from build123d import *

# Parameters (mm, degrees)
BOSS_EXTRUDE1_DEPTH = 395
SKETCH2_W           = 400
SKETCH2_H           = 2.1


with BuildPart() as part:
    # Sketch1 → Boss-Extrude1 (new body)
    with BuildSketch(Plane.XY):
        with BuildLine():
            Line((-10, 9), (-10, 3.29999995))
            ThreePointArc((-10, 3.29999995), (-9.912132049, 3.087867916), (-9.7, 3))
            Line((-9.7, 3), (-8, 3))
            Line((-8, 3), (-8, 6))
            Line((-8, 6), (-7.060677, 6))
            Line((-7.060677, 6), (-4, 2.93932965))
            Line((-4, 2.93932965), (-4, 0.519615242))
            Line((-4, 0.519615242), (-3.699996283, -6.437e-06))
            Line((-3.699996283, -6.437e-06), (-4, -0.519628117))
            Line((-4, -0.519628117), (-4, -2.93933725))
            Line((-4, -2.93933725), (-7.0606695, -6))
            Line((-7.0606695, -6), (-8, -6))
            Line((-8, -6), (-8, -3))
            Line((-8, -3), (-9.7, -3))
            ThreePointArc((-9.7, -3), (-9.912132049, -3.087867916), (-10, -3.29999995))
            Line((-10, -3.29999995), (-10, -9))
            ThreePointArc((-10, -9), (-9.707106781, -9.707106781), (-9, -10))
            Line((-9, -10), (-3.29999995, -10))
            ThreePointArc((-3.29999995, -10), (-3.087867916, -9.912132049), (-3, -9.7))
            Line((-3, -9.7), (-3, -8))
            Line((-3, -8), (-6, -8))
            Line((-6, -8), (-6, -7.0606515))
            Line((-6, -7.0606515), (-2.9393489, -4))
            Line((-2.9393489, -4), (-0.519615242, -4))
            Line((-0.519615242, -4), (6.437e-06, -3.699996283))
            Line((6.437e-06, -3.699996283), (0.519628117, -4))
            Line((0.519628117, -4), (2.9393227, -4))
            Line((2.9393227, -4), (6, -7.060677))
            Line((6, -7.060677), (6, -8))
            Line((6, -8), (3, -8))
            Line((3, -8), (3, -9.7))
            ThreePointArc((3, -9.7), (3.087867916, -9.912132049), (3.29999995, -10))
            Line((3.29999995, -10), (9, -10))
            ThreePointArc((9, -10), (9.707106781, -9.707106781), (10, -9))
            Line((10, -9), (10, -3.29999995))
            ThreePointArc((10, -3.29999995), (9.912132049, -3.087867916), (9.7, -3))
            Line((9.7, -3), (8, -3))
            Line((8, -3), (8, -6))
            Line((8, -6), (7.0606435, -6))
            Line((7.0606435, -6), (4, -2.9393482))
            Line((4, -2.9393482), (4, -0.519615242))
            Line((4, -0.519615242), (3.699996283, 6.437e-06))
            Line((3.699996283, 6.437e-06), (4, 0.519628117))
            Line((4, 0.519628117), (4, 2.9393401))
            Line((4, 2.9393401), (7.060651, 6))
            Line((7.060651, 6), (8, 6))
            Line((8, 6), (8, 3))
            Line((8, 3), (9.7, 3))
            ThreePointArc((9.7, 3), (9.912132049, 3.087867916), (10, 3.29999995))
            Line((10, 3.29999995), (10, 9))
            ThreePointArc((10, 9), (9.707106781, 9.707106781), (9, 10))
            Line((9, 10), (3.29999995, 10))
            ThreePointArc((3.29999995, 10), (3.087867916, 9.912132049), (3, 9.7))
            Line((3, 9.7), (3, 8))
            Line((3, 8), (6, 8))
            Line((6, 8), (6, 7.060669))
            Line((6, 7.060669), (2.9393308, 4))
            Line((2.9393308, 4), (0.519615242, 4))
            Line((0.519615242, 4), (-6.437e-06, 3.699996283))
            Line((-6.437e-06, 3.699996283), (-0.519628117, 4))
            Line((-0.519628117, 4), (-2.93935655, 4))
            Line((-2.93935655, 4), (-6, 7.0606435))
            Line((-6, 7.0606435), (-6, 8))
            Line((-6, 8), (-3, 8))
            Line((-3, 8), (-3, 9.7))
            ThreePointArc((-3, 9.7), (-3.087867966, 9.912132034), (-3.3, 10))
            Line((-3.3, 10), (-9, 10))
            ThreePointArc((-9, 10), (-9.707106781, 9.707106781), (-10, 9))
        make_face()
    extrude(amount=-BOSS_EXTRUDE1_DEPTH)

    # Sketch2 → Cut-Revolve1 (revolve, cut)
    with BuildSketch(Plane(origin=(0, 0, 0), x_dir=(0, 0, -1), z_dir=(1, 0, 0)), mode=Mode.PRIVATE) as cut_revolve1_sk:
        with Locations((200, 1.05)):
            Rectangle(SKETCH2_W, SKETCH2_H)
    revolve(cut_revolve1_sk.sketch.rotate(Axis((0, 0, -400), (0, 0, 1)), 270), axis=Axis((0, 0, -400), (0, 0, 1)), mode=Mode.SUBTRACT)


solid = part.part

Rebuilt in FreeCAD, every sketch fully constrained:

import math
import FreeCAD as App
import Part
import Sketcher
Q = App.Units.Quantity

doc = App.newDocument("Part")
params = doc.addObject("Spreadsheet::Sheet", "Params")
for row, (alias, value) in enumerate([
    ("sketch1_radius", "1 mm"),
    ("sketch1_radius2", "0.3 mm"),
    ("sketch1_width", "3 mm"),
    ("sketch1_width2", "1.7 mm"),
    ("sketch1_width3", "5.7 mm"),
    ("pad1_length", "395 mm"),
    ("sketch2_height", "400 mm"),
    ("sketch2_width", "2.1 mm"),
    ("groove_angle", "360 deg"),
], start=1):
    params.set(f"A{row}", alias)
    params.set(f"B{row}", "=" + value)
    params.setAlias(f"B{row}", alias)

body = doc.addObject("PartDesign::Body", "Body")

# Sketch on XY plane
sketch1 = body.newObject("Sketcher::SketchObject", "Sketch")
sketch1.AttachmentSupport = (doc.getObject("XY_Plane"), [""])
sketch1.MapMode = "FlatFace"
sketch1.addGeometry(Part.LineSegment(App.Vector(-10, 9, 0), App.Vector(-10, 3.3, 0)), False)
sketch1.addGeometry(Part.ArcOfCircle(Part.Circle(App.Vector(-9.7, 3.3, 0), App.Vector(0, 0, 1), 0.3), math.radians(180), math.radians(270)), False)
sketch1.addGeometry(Part.LineSegment(App.Vector(-9.7, 3, 0), App.Vector(-8, 3, 0)), False)
sketch1.addGeometry(Part.LineSegment(App.Vector(-8, 3, 0), App.Vector(-8, 6, 0)), False)
sketch1.addGeometry(Part.LineSegment(App.Vector(-8, 6, 0), App.Vector(-7.06, 6, 0)), False)
sketch1.addGeometry(Part.LineSegment(App.Vector(-7.06, 6, 0), App.Vector(-4, 2.94, 0)), False)
sketch1.addGeometry(Part.LineSegment(App.Vector(-4, 2.94, 0), App.Vector(-4, 0.52, 0)), False)
sketch1.addGeometry(Part.LineSegment(App.Vector(-4, 0.52, 0), App.Vector(-3.7, 0, 0)), False)
sketch1.addGeometry(Part.LineSegment(App.Vector(-3.7, 0, 0), App.Vector(-4, -0.52, 0)), False)
sketch1.addGeometry(Part.LineSegment(App.Vector(-4, -0.52, 0), App.Vector(-4, -2.94, 0)), False)
sketch1.addGeometry(Part.LineSegment(App.Vector(-4, -2.94, 0), App.Vector(-7.06, -6, 0)), False)
sketch1.addGeometry(Part.LineSegment(App.Vector(-7.06, -6, 0), App.Vector(-8, -6, 0)), False)
sketch1.addGeometry(Part.LineSegment(App.Vector(-8, -6, 0), App.Vector(-8, -3, 0)), False)
sketch1.addGeometry(Part.LineSegment(App.Vector(-8, -3, 0), App.Vector(-9.7, -3, 0)), False)
sketch1.addGeometry(Part.ArcOfCircle(Part.Circle(App.Vector(-9.7, -3.3, 0), App.Vector(0, 0, 1), 0.3), math.radians(90), math.radians(180)), False)
sketch1.addGeometry(Part.LineSegment(App.Vector(-10, -3.3, 0), App.Vector(-10, -9, 0)), False)
sketch1.addGeometry(Part.ArcOfCircle(Part.Circle(App.Vector(-9, -9, 0), App.Vector(0, 0, 1), 1), math.radians(-180), math.radians(-90)), False)
sketch1.addGeometry(Part.LineSegment(App.Vector(-9, -10, 0), App.Vector(-3.3, -10, 0)), False)
sketch1.addGeometry(Part.ArcOfCircle(Part.Circle(App.Vector(-3.3, -9.7, 0), App.Vector(0, 0, 1), 0.3), math.radians(-90), math.radians(0)), False)
sketch1.addGeometry(Part.LineSegment(App.Vector(-3, -9.7, 0), App.Vector(-3, -8, 0)), False)
sketch1.addGeometry(Part.LineSegment(App.Vector(-3, -8, 0), App.Vector(-6, -8, 0)), False)
sketch1.addGeometry(Part.LineSegment(App.Vector(-6, -8, 0), App.Vector(-6, -7.06, 0)), False)
sketch1.addGeometry(Part.LineSegment(App.Vector(-6, -7.06, 0), App.Vector(-2.94, -4, 0)), False)
sketch1.addGeometry(Part.LineSegment(App.Vector(-2.94, -4, 0), App.Vector(-0.52, -4, 0)), False)
sketch1.addGeometry(Part.LineSegment(App.Vector(-0.52, -4, 0), App.Vector(0, -3.7, 0)), False)
sketch1.addGeometry(Part.LineSegment(App.Vector(0, -3.7, 0), App.Vector(0.52, -4, 0)), False)
sketch1.addGeometry(Part.LineSegment(App.Vector(0.52, -4, 0), App.Vector(2.94, -4, 0)), False)
sketch1.addGeometry(Part.LineSegment(App.Vector(2.94, -4, 0), App.Vector(6, -7.06, 0)), False)
sketch1.addGeometry(Part.LineSegment(App.Vector(6, -7.06, 0), App.Vector(6, -8, 0)), False)
sketch1.addGeometry(Part.LineSegment(App.Vector(6, -8, 0), App.Vector(3, -8, 0)), False)
sketch1.addGeometry(Part.LineSegment(App.Vector(3, -8, 0), App.Vector(3, -9.7, 0)), False)
sketch1.addGeometry(Part.ArcOfCircle(Part.Circle(App.Vector(3.3, -9.7, 0), App.Vector(0, 0, 1), 0.3), math.radians(180), math.radians(270)), False)
sketch1.addGeometry(Part.LineSegment(App.Vector(3.3, -10, 0), App.Vector(9, -10, 0)), False)
sketch1.addGeometry(Part.ArcOfCircle(Part.Circle(App.Vector(9, -9, 0), App.Vector(0, 0, 1), 1), math.radians(-90), math.radians(0)), False)
sketch1.addGeometry(Part.LineSegment(App.Vector(10, -9, 0), App.Vector(10, -3.3, 0)), False)
sketch1.addGeometry(Part.ArcOfCircle(Part.Circle(App.Vector(9.7, -3.3, 0), App.Vector(0, 0, 1), 0.3), math.radians(0), math.radians(90)), False)
sketch1.addGeometry(Part.LineSegment(App.Vector(9.7, -3, 0), App.Vector(8, -3, 0)), False)
sketch1.addGeometry(Part.LineSegment(App.Vector(8, -3, 0), App.Vector(8, -6, 0)), False)
sketch1.addGeometry(Part.LineSegment(App.Vector(8, -6, 0), App.Vector(7.06, -6, 0)), False)
sketch1.addGeometry(Part.LineSegment(App.Vector(7.06, -6, 0), App.Vector(4, -2.94, 0)), False)
sketch1.addGeometry(Part.LineSegment(App.Vector(4, -2.94, 0), App.Vector(4, -0.52, 0)), False)
sketch1.addGeometry(Part.LineSegment(App.Vector(4, -0.52, 0), App.Vector(3.7, 0, 0)), False)
sketch1.addGeometry(Part.LineSegment(App.Vector(3.7, 0, 0), App.Vector(4, 0.52, 0)), False)
sketch1.addGeometry(Part.LineSegment(App.Vector(4, 0.52, 0), App.Vector(4, 2.94, 0)), False)
sketch1.addGeometry(Part.LineSegment(App.Vector(4, 2.94, 0), App.Vector(7.06, 6, 0)), False)
sketch1.addGeometry(Part.LineSegment(App.Vector(7.06, 6, 0), App.Vector(8, 6, 0)), False)
sketch1.addGeometry(Part.LineSegment(App.Vector(8, 6, 0), App.Vector(8, 3, 0)), False)
sketch1.addGeometry(Part.LineSegment(App.Vector(8, 3, 0), App.Vector(9.7, 3, 0)), False)
sketch1.addGeometry(Part.ArcOfCircle(Part.Circle(App.Vector(9.7, 3.3, 0), App.Vector(0, 0, 1), 0.3), math.radians(-90), math.radians(0)), False)
sketch1.addGeometry(Part.LineSegment(App.Vector(10, 3.3, 0), App.Vector(10, 9, 0)), False)
sketch1.addGeometry(Part.ArcOfCircle(Part.Circle(App.Vector(9, 9, 0), App.Vector(0, 0, 1), 1), math.radians(0), math.radians(90)), False)
sketch1.addGeometry(Part.LineSegment(App.Vector(9, 10, 0), App.Vector(3.3, 10, 0)), False)
sketch1.addGeometry(Part.ArcOfCircle(Part.Circle(App.Vector(3.3, 9.7, 0), App.Vector(0, 0, 1), 0.3), math.radians(90), math.radians(180)), False)
sketch1.addGeometry(Part.LineSegment(App.Vector(3, 9.7, 0), App.Vector(3, 8, 0)), False)
sketch1.addGeometry(Part.LineSegment(App.Vector(3, 8, 0), App.Vector(6, 8, 0)), False)
sketch1.addGeometry(Part.LineSegment(App.Vector(6, 8, 0), App.Vector(6, 7.06, 0)), False)
sketch1.addGeometry(Part.LineSegment(App.Vector(6, 7.06, 0), App.Vector(2.94, 4, 0)), False)
sketch1.addGeometry(Part.LineSegment(App.Vector(2.94, 4, 0), App.Vector(0.52, 4, 0)), False)
sketch1.addGeometry(Part.LineSegment(App.Vector(0.52, 4, 0), App.Vector(0, 3.7, 0)), False)
sketch1.addGeometry(Part.LineSegment(App.Vector(0, 3.7, 0), App.Vector(-0.52, 4, 0)), False)
sketch1.addGeometry(Part.LineSegment(App.Vector(-0.52, 4, 0), App.Vector(-2.94, 4, 0)), False)
sketch1.addGeometry(Part.LineSegment(App.Vector(-2.94, 4, 0), App.Vector(-6, 7.06, 0)), False)
sketch1.addGeometry(Part.LineSegment(App.Vector(-6, 7.06, 0), App.Vector(-6, 8, 0)), False)
sketch1.addGeometry(Part.LineSegment(App.Vector(-6, 8, 0), App.Vector(-3, 8, 0)), False)
sketch1.addGeometry(Part.LineSegment(App.Vector(-3, 8, 0), App.Vector(-3, 9.7, 0)), False)
sketch1.addGeometry(Part.ArcOfCircle(Part.Circle(App.Vector(-3.3, 9.7, 0), App.Vector(0, 0, 1), 0.3), math.radians(0), math.radians(90)), False)
sketch1.addGeometry(Part.LineSegment(App.Vector(-3.3, 10, 0), App.Vector(-9, 10, 0)), False)
sketch1.addGeometry(Part.ArcOfCircle(Part.Circle(App.Vector(-9, 9, 0), App.Vector(0, 0, 1), 1), math.radians(90), math.radians(180)), False)
sketch1.addConstraint(Sketcher.Constraint("Tangent", 0, 2, 1, 1))
sketch1.addConstraint(Sketcher.Constraint("Tangent", 1, 2, 2, 1))
sketch1.addConstraint(Sketcher.Constraint("Coincident", 2, 2, 3, 1))
sketch1.addConstraint(Sketcher.Constraint("Coincident", 3, 2, 4, 1))
sketch1.addConstraint(Sketcher.Constraint("Coincident", 4, 2, 5, 1))
sketch1.addConstraint(Sketcher.Constraint("Coincident", 5, 2, 6, 1))
sketch1.addConstraint(Sketcher.Constraint("Coincident", 6, 2, 7, 1))
sketch1.addConstraint(Sketcher.Constraint("Coincident", 7, 2, 8, 1))
sketch1.addConstraint(Sketcher.Constraint("Coincident", 8, 2, 9, 1))
sketch1.addConstraint(Sketcher.Constraint("Coincident", 9, 2, 10, 1))
sketch1.addConstraint(Sketcher.Constraint("Coincident", 10, 2, 11, 1))
sketch1.addConstraint(Sketcher.Constraint("Coincident", 11, 2, 12, 1))
sketch1.addConstraint(Sketcher.Constraint("Coincident", 12, 2, 13, 1))
sketch1.addConstraint(Sketcher.Constraint("Tangent", 13, 2, 14, 1))
sketch1.addConstraint(Sketcher.Constraint("Tangent", 14, 2, 15, 1))
sketch1.addConstraint(Sketcher.Constraint("Tangent", 15, 2, 16, 1))
sketch1.addConstraint(Sketcher.Constraint("Tangent", 16, 2, 17, 1))
sketch1.addConstraint(Sketcher.Constraint("Tangent", 17, 2, 18, 1))
sketch1.addConstraint(Sketcher.Constraint("Tangent", 18, 2, 19, 1))
sketch1.addConstraint(Sketcher.Constraint("Coincident", 19, 2, 20, 1))
sketch1.addConstraint(Sketcher.Constraint("Coincident", 20, 2, 21, 1))
sketch1.addConstraint(Sketcher.Constraint("Coincident", 21, 2, 22, 1))
sketch1.addConstraint(Sketcher.Constraint("Coincident", 22, 2, 23, 1))
sketch1.addConstraint(Sketcher.Constraint("Coincident", 23, 2, 24, 1))
sketch1.addConstraint(Sketcher.Constraint("Coincident", 24, 2, 25, 1))
sketch1.addConstraint(Sketcher.Constraint("Coincident", 25, 2, 26, 1))
sketch1.addConstraint(Sketcher.Constraint("Coincident", 26, 2, 27, 1))
sketch1.addConstraint(Sketcher.Constraint("Coincident", 27, 2, 28, 1))
sketch1.addConstraint(Sketcher.Constraint("Coincident", 28, 2, 29, 1))
sketch1.addConstraint(Sketcher.Constraint("Coincident", 29, 2, 30, 1))
sketch1.addConstraint(Sketcher.Constraint("Tangent", 30, 2, 31, 1))
sketch1.addConstraint(Sketcher.Constraint("Tangent", 31, 2, 32, 1))
sketch1.addConstraint(Sketcher.Constraint("Tangent", 32, 2, 33, 1))
sketch1.addConstraint(Sketcher.Constraint("Tangent", 33, 2, 34, 1))
sketch1.addConstraint(Sketcher.Constraint("Tangent", 34, 2, 35, 1))
sketch1.addConstraint(Sketcher.Constraint("Tangent", 35, 2, 36, 1))
sketch1.addConstraint(Sketcher.Constraint("Coincident", 36, 2, 37, 1))
sketch1.addConstraint(Sketcher.Constraint("Coincident", 37, 2, 38, 1))
sketch1.addConstraint(Sketcher.Constraint("Coincident", 38, 2, 39, 1))
sketch1.addConstraint(Sketcher.Constraint("Coincident", 39, 2, 40, 1))
sketch1.addConstraint(Sketcher.Constraint("Coincident", 40, 2, 41, 1))
sketch1.addConstraint(Sketcher.Constraint("Coincident", 41, 2, 42, 1))
sketch1.addConstraint(Sketcher.Constraint("Coincident", 42, 2, 43, 1))
sketch1.addConstraint(Sketcher.Constraint("Coincident", 43, 2, 44, 1))
sketch1.addConstraint(Sketcher.Constraint("Coincident", 44, 2, 45, 1))
sketch1.addConstraint(Sketcher.Constraint("Coincident", 45, 2, 46, 1))
sketch1.addConstraint(Sketcher.Constraint("Coincident", 46, 2, 47, 1))
sketch1.addConstraint(Sketcher.Constraint("Tangent", 47, 2, 48, 1))
sketch1.addConstraint(Sketcher.Constraint("Tangent", 48, 2, 49, 1))
sketch1.addConstraint(Sketcher.Constraint("Tangent", 49, 2, 50, 1))
sketch1.addConstraint(Sketcher.Constraint("Tangent", 50, 2, 51, 1))
sketch1.addConstraint(Sketcher.Constraint("Tangent", 51, 2, 52, 1))
sketch1.addConstraint(Sketcher.Constraint("Tangent", 52, 2, 53, 1))
sketch1.addConstraint(Sketcher.Constraint("Coincident", 53, 2, 54, 1))
sketch1.addConstraint(Sketcher.Constraint("Coincident", 54, 2, 55, 1))
sketch1.addConstraint(Sketcher.Constraint("Coincident", 55, 2, 56, 1))
sketch1.addConstraint(Sketcher.Constraint("Coincident", 56, 2, 57, 1))
sketch1.addConstraint(Sketcher.Constraint("Coincident", 57, 2, 58, 1))
sketch1.addConstraint(Sketcher.Constraint("Coincident", 58, 2, 59, 1))
sketch1.addConstraint(Sketcher.Constraint("Coincident", 59, 2, 60, 1))
sketch1.addConstraint(Sketcher.Constraint("Coincident", 60, 2, 61, 1))
sketch1.addConstraint(Sketcher.Constraint("Coincident", 61, 2, 62, 1))
sketch1.addConstraint(Sketcher.Constraint("Coincident", 62, 2, 63, 1))
sketch1.addConstraint(Sketcher.Constraint("Coincident", 63, 2, 64, 1))
sketch1.addConstraint(Sketcher.Constraint("Tangent", 64, 2, 65, 1))
sketch1.addConstraint(Sketcher.Constraint("Tangent", 65, 2, 66, 1))
sketch1.addConstraint(Sketcher.Constraint("Tangent", 66, 2, 67, 1))
sketch1.addConstraint(Sketcher.Constraint("Tangent", 67, 2, 0, 1))
sketch1.addConstraint(Sketcher.Constraint("Vertical", 0))
sketch1.addConstraint(Sketcher.Constraint("Horizontal", 2))
sketch1.addConstraint(Sketcher.Constraint("Vertical", 3))
sketch1.addConstraint(Sketcher.Constraint("Horizontal", 4))
sketch1.addConstraint(Sketcher.Constraint("Vertical", 6))
sketch1.addConstraint(Sketcher.Constraint("Vertical", 9))
sketch1.addConstraint(Sketcher.Constraint("Horizontal", 11))
sketch1.addConstraint(Sketcher.Constraint("Vertical", 12))
sketch1.addConstraint(Sketcher.Constraint("Horizontal", 13))
sketch1.addConstraint(Sketcher.Constraint("Vertical", 15))
sketch1.addConstraint(Sketcher.Constraint("Horizontal", 17))
sketch1.addConstraint(Sketcher.Constraint("Vertical", 19))
sketch1.addConstraint(Sketcher.Constraint("Horizontal", 20))
sketch1.addConstraint(Sketcher.Constraint("Vertical", 21))
sketch1.addConstraint(Sketcher.Constraint("Horizontal", 23))
sketch1.addConstraint(Sketcher.Constraint("Horizontal", 26))
sketch1.addConstraint(Sketcher.Constraint("Vertical", 28))
sketch1.addConstraint(Sketcher.Constraint("Horizontal", 29))
sketch1.addConstraint(Sketcher.Constraint("Vertical", 30))
sketch1.addConstraint(Sketcher.Constraint("Horizontal", 32))
sketch1.addConstraint(Sketcher.Constraint("Vertical", 34))
sketch1.addConstraint(Sketcher.Constraint("Horizontal", 36))
sketch1.addConstraint(Sketcher.Constraint("Vertical", 37))
sketch1.addConstraint(Sketcher.Constraint("Horizontal", 38))
sketch1.addConstraint(Sketcher.Constraint("Vertical", 40))
sketch1.addConstraint(Sketcher.Constraint("Vertical", 43))
sketch1.addConstraint(Sketcher.Constraint("Horizontal", 45))
sketch1.addConstraint(Sketcher.Constraint("Vertical", 46))
sketch1.addConstraint(Sketcher.Constraint("Horizontal", 47))
sketch1.addConstraint(Sketcher.Constraint("Vertical", 49))
sketch1.addConstraint(Sketcher.Constraint("Horizontal", 51))
sketch1.addConstraint(Sketcher.Constraint("Vertical", 53))
sketch1.addConstraint(Sketcher.Constraint("Horizontal", 54))
sketch1.addConstraint(Sketcher.Constraint("Vertical", 55))
sketch1.addConstraint(Sketcher.Constraint("Horizontal", 57))
sketch1.addConstraint(Sketcher.Constraint("Horizontal", 60))
sketch1.addConstraint(Sketcher.Constraint("Vertical", 62))
sketch1.addConstraint(Sketcher.Constraint("Horizontal", 63))
sketch1.addConstraint(Sketcher.Constraint("Vertical", 64))
sketch1.addConstraint(Sketcher.Constraint("Horizontal", 66))
sketch1.addConstraint(Sketcher.Constraint("Equal", 1, 14))
sketch1.addConstraint(Sketcher.Constraint("Equal", 14, 18))
sketch1.addConstraint(Sketcher.Constraint("Equal", 18, 31))
sketch1.addConstraint(Sketcher.Constraint("Equal", 16, 33))
sketch1.addConstraint(Sketcher.Constraint("Equal", 31, 35))
sketch1.addConstraint(Sketcher.Constraint("Equal", 35, 48))
sketch1.addConstraint(Sketcher.Constraint("Equal", 33, 50))
sketch1.addConstraint(Sketcher.Constraint("Equal", 48, 52))
sketch1.addConstraint(Sketcher.Constraint("Equal", 52, 65))
sketch1.addConstraint(Sketcher.Constraint("Equal", 50, 67))
sketch1.addConstraint(Sketcher.Constraint("Symmetric", 1, 3, 35, 3, -1, 1))
sketch1.addConstraint(Sketcher.Constraint("Symmetric", 14, 3, 48, 3, -1, 1))
sketch1.addConstraint(Sketcher.Constraint("Symmetric", 18, 3, 52, 3, -1, 1))
sketch1.addConstraint(Sketcher.Constraint("Symmetric", 31, 3, 65, 3, -1, 1))
sketch1.addConstraint(Sketcher.Constraint("Symmetric", 3, 2, 37, 2, -1, 1))
sketch1.addConstraint(Sketcher.Constraint("Symmetric", 6, 2, 40, 2, -1, 1))
sketch1.addConstraint(Sketcher.Constraint("Symmetric", 7, 2, 41, 2, -1, 1))
sketch1.addConstraint(Sketcher.Constraint("Symmetric", 8, 2, 42, 2, -1, 1))
sketch1.addConstraint(Sketcher.Constraint("Symmetric", 11, 2, 45, 2, -1, 1))
sketch1.addConstraint(Sketcher.Constraint("Symmetric", 20, 2, 54, 2, -1, 1))
sketch1.addConstraint(Sketcher.Constraint("Symmetric", 23, 2, 57, 2, -1, 1))
sketch1.addConstraint(Sketcher.Constraint("Symmetric", 24, 2, 58, 2, -1, 1))
sketch1.addConstraint(Sketcher.Constraint("Symmetric", 25, 2, 59, 2, -1, 1))
sketch1.addConstraint(Sketcher.Constraint("Symmetric", 28, 2, 62, 2, -1, 1))
sketch1.addConstraint(Sketcher.Constraint("Symmetric", 18, 3, 31, 3, -2))
sketch1.addConstraint(Sketcher.Constraint("Symmetric", 14, 3, 35, 3, -2))
sketch1.addConstraint(Sketcher.Constraint("Symmetric", 20, 2, 28, 2, -2))
sketch1.addConstraint(Sketcher.Constraint("Symmetric", 11, 2, 37, 2, -2))
sketch1.addConstraint(Sketcher.Constraint("Symmetric", 5, 2, 9, 2, -1))
sketch1.addConstraint(Sketcher.Constraint("Symmetric", 26, 2, 56, 2, -1))
sketch1.addConstraint(Sketcher.Constraint("Parallel", 10, 22))
sketch1.addConstraint(Sketcher.Constraint("Perpendicular", 7, 24))
sketch1.addConstraint(Sketcher.Constraint("Perpendicular", 8, 25))
sketch1.addConstraint(Sketcher.Constraint("Perpendicular", 22, 27))
sketch1.addConstraint(Sketcher.Constraint("Parallel", 27, 39))
sketch1.addConstraint(Sketcher.Constraint("Perpendicular", 27, 44))
sketch1.addConstraint(Sketcher.Constraint("Parallel", 44, 56))
sketch1.addConstraint(Sketcher.Constraint("Perpendicular", 56, 61))
sketch1.addConstraint(Sketcher.Constraint("Equal", 66, 0))
sketch1.addConstraint(Sketcher.Constraint("Equal", 63, 3))
sketch1.addConstraint(Sketcher.Constraint("Equal", 57, 6))
sketch1.addConstraint(Sketcher.Constraint("Equal", 47, 19))
sketch1.addConstraint(Sketcher.Constraint("Equal", 45, 21))
sketch1.addConstraint(Sketcher.Constraint("Equal", 4, 28))
sketch1.addConstraint(Sketcher.Constraint("Equal", 23, 40))
sketch1.addConstraint(Sketcher.Constraint("Equal", 11, 55))
sketch1.addConstraint(Sketcher.Constraint("Equal", 38, 62))
sketch1.addConstraint(Sketcher.Constraint("Equal", 7, 8))
sketch1.addConstraint(Sketcher.Constraint("Equal", 8, 24))
sketch1.addConstraint(Sketcher.Constraint("Radius", 16, 1.0))
sketch1.addConstraint(Sketcher.Constraint("Radius", 1, 0.3))
sketch1.addConstraint(Sketcher.Constraint("DistanceX", 20, 2, 20, 1, 3.0))
sketch1.addConstraint(Sketcher.Constraint("Angle", 7, Q("-60 deg")))
sketch1.addConstraint(Sketcher.Constraint("Angle", 22, Q("45.000004 deg")))
sketch1.addConstraint(Sketcher.Constraint("DistanceX", 2, 1, 2, 2, 1.7))
sketch1.addConstraint(Sketcher.Constraint("DistanceX", 17, 1, 17, 2, 5.7))
sketch1.addConstraint(Sketcher.Constraint("DistanceX", 16, 3, -1, 1, 9.0))
sketch1.addConstraint(Sketcher.Constraint("DistanceY", 16, 3, -1, 1, 9.0))
sketch1.addConstraint(Sketcher.Constraint("DistanceX", 5, 2, -1, 1, 4.0))
sketch1.addConstraint(Sketcher.Constraint("DistanceY", 22, 2, -1, 1, 4.0))
sketch1.addConstraint(Sketcher.Constraint("DistanceX", 11, 2, 11, 1, 0.93933))
sketch1.addConstraint(Sketcher.Constraint("DistanceX", 45, 1, 45, 2, 0.939349))
sketch1.addConstraint(Sketcher.Constraint("DistanceX", 60, 2, 60, 1, 2.419728))
sketch1.addConstraint(Sketcher.Constraint("DistanceX", 23, 1, 23, 2, 2.419734))
sketch1.setExpression("Constraints[157]", "Params.sketch1_radius")
sketch1.setExpression("Constraints[158]", "Params.sketch1_radius2")
sketch1.setExpression("Constraints[159]", "Params.sketch1_width")
sketch1.setExpression("Constraints[162]", "Params.sketch1_width2")
sketch1.setExpression("Constraints[163]", "Params.sketch1_width3")
pad1 = body.newObject("PartDesign::Pad", "Pad")
pad1.Profile = sketch1
pad1.setExpression("Length", "Params.pad1_length")
pad1.Reversed = True

# Sketch on YZ plane
sketch2 = body.newObject("Sketcher::SketchObject", "Sketch001")
sketch2.AttachmentSupport = (doc.getObject("YZ_Plane"), [""])
sketch2.MapMode = "FlatFace"
sketch2.addGeometry(Part.LineSegment(App.Vector(2.1, 0, 0), App.Vector(0, 0, 0)), False)
sketch2.addGeometry(Part.LineSegment(App.Vector(0, 0, 0), App.Vector(0, -400, 0)), False)
sketch2.addGeometry(Part.LineSegment(App.Vector(0, -400, 0), App.Vector(2.1, -400, 0)), False)
sketch2.addGeometry(Part.LineSegment(App.Vector(2.1, -400, 0), App.Vector(2.1, 0, 0)), False)
sketch2.addConstraint(Sketcher.Constraint("Coincident", 0, 2, 1, 1))
sketch2.addConstraint(Sketcher.Constraint("Coincident", 1, 2, 2, 1))
sketch2.addConstraint(Sketcher.Constraint("Coincident", 2, 2, 3, 1))
sketch2.addConstraint(Sketcher.Constraint("Coincident", 3, 2, 0, 1))
sketch2.addConstraint(Sketcher.Constraint("Horizontal", 0))
sketch2.addConstraint(Sketcher.Constraint("Vertical", 1))
sketch2.addConstraint(Sketcher.Constraint("Horizontal", 2))
sketch2.addConstraint(Sketcher.Constraint("Vertical", 3))
sketch2.addConstraint(Sketcher.Constraint("Coincident", 0, 2, -1, 1))
sketch2.addConstraint(Sketcher.Constraint("DistanceY", 1, 2, 1, 1, 400.0))
sketch2.addConstraint(Sketcher.Constraint("DistanceX", 0, 2, 0, 1, 2.1))
sketch2.setExpression("Constraints[9]", "Params.sketch2_height")
sketch2.setExpression("Constraints[10]", "Params.sketch2_width")
groove = body.newObject("PartDesign::Groove", "Groove")
groove.Profile = sketch2
groove.ReferenceAxis = (sketch2, ["V_Axis"])
groove.setExpression("Angle", "Params.groove_angle")

doc.recompute()
